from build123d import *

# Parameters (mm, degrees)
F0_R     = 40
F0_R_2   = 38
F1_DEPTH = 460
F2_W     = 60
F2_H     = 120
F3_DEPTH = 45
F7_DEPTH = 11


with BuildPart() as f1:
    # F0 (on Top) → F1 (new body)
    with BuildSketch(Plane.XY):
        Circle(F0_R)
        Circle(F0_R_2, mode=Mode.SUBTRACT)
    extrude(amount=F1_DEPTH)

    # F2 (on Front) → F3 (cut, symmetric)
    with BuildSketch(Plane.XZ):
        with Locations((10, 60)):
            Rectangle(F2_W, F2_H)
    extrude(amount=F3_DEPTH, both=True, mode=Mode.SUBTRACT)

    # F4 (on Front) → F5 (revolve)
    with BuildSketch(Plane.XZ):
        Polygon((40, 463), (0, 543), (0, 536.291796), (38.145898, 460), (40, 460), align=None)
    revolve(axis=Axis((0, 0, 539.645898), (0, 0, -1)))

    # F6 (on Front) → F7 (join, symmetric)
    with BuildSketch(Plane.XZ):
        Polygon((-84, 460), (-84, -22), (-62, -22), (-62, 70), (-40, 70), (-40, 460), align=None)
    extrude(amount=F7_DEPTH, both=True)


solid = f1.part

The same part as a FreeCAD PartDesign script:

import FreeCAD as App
import Part
import Sketcher

V = App.Vector


def add_polygon(sketch, points):
    """Adds a closed chain of lines whose ends are joined by coincident constraints."""
    first, n = sketch.GeometryCount, len(points)
    for a, b in zip(points, points[1:] + points[:1]):
        sketch.addGeometry(Part.LineSegment(App.Vector(*a, 0), App.Vector(*b, 0)), False)
    for i in range(n):
        sketch.addConstraint(Sketcher.Constraint("Coincident", first + i, 2, first + (i + 1) % n, 1))

doc = App.newDocument("Part")
body = doc.addObject("PartDesign::Body", "Body")
body.AllowCompound = True

# Sketch on XY plane
sketch1 = body.newObject("Sketcher::SketchObject", "Sketch")
sketch1.AttachmentSupport = (doc.getObject("XY_Plane"), [""])
sketch1.MapMode = "FlatFace"
sketch1.addGeometry([
    Part.Circle(V(0, 0, 0), V(0, 0, 1), 40),
    Part.Circle(V(0, 0, 0), V(0, 0, 1), 38),
], False)
sketch1.addConstraint([
    Sketcher.Constraint("Coincident", 0, 3, -1, 1),
    Sketcher.Constraint("Coincident", 1, 3, -1, 1),
    Sketcher.Constraint("Diameter", 0, 80.0),
    Sketcher.Constraint("Diameter", 1, 76.0),
])
pad1 = body.newObject("PartDesign::Pad", "Pad")
pad1.Profile = sketch1
pad1.Length = 460

# Sketch on XZ plane
sketch2 = body.newObject("Sketcher::SketchObject", "Sketch001")
sketch2.AttachmentSupport = (doc.getObject("XZ_Plane"), [""])
sketch2.MapMode = "FlatFace"
add_polygon(sketch2, [(-20, 120), (-20, 0), (40, 0), (40, 120)])  # lines 0-3
sketch2.addConstraint([
    Sketcher.Constraint("Vertical", 0),
    Sketcher.Constraint("Horizontal", 1),
    Sketcher.Constraint("Vertical", 2),
    Sketcher.Constraint("Horizontal", 3),
    Sketcher.Constraint("PointOnObject", 0, 2, -1),
    Sketcher.Constraint("DistanceX", 1, 1, 1, 2, 60.0),
    Sketcher.Constraint("DistanceY", 0, 2, 0, 1, 120.0),
    Sketcher.Constraint("DistanceX", 0, 2, -1, 1, 20.0),
])
pocket1 = body.newObject("PartDesign::Pocket", "Pocket")
pocket1.Profile = sketch2
pocket1.Length = 90
pocket1.Midplane = True

# Sketch on XZ plane
sketch3 = body.newObject("Sketcher::SketchObject", "Sketch002")
sketch3.AttachmentSupport = (doc.getObject("XZ_Plane"), [""])
sketch3.MapMode = "FlatFace"
add_polygon(sketch3, [(40, 463), (0, 543), (0, 536.291796), (38.145898, 460), (40, 460)])  # lines 0-4
sketch3.addConstraint([
    Sketcher.Constraint("Vertical", 1),
    Sketcher.Constraint("Horizontal", 3),
    Sketcher.Constraint("Vertical", 4),
    Sketcher.Constraint("PointOnObject", 0, 2, -2),
    Sketcher.Constraint("Parallel", 0, 2),
    Sketcher.Constraint("DistanceY", 4, 1, 4, 2, 3.0),
    Sketcher.Constraint("DistanceY", -1, 1, 0, 2, 543.0),
    Sketcher.Constraint("DistanceY", -1, 1, 2, 2, 460.0),
    Sketcher.Constraint("DistanceX", -1, 1, 3, 2, 40.0),
    Sketcher.Constraint("DistanceX", 3, 1, 3, 2, 1.854102),
])
revolution = body.newObject("PartDesign::Revolution", "Revolution")
revolution.Profile = sketch3
revolution.ReferenceAxis = (sketch3, ["V_Axis"])
revolution.Angle = 360

# Sketch on XZ plane
sketch4 = body.newObject("Sketcher::SketchObject", "Sketch003")
sketch4.AttachmentSupport = (doc.getObject("XZ_Plane"), [""])
sketch4.MapMode = "FlatFace"
add_polygon(sketch4, [(-84, 460), (-84, -22), (-62, -22), (-62, 70), (-40, 70), (-40, 460)])  # lines 0-5
sketch4.addConstraint([
    Sketcher.Constraint("Vertical", 0),
    Sketcher.Constraint("Horizontal", 1),
    Sketcher.Constraint("Vertical", 2),
    Sketcher.Constraint("Horizontal", 3),
    Sketcher.Constraint("Vertical", 4),
    Sketcher.Constraint("Horizontal", 5),
    Sketcher.Constraint("Equal", 1, 3),
    Sketcher.Constraint("DistanceX", 1, 1, 1, 2, 22.0),
    Sketcher.Constraint("DistanceY", 0, 2, 0, 1, 482.0),
    Sketcher.Constraint("DistanceY", 2, 1, 2, 2, 92.0),
    Sketcher.Constraint("DistanceX", 0, 2, -1, 1, 84.0),
    Sketcher.Constraint("DistanceY", 0, 2, -1, 1, 22.0),
])
pad2 = body.newObject("PartDesign::Pad", "Pad001")
pad2.Profile = sketch4
pad2.Length = 22
pad2.Midplane = True

doc.recompute()
